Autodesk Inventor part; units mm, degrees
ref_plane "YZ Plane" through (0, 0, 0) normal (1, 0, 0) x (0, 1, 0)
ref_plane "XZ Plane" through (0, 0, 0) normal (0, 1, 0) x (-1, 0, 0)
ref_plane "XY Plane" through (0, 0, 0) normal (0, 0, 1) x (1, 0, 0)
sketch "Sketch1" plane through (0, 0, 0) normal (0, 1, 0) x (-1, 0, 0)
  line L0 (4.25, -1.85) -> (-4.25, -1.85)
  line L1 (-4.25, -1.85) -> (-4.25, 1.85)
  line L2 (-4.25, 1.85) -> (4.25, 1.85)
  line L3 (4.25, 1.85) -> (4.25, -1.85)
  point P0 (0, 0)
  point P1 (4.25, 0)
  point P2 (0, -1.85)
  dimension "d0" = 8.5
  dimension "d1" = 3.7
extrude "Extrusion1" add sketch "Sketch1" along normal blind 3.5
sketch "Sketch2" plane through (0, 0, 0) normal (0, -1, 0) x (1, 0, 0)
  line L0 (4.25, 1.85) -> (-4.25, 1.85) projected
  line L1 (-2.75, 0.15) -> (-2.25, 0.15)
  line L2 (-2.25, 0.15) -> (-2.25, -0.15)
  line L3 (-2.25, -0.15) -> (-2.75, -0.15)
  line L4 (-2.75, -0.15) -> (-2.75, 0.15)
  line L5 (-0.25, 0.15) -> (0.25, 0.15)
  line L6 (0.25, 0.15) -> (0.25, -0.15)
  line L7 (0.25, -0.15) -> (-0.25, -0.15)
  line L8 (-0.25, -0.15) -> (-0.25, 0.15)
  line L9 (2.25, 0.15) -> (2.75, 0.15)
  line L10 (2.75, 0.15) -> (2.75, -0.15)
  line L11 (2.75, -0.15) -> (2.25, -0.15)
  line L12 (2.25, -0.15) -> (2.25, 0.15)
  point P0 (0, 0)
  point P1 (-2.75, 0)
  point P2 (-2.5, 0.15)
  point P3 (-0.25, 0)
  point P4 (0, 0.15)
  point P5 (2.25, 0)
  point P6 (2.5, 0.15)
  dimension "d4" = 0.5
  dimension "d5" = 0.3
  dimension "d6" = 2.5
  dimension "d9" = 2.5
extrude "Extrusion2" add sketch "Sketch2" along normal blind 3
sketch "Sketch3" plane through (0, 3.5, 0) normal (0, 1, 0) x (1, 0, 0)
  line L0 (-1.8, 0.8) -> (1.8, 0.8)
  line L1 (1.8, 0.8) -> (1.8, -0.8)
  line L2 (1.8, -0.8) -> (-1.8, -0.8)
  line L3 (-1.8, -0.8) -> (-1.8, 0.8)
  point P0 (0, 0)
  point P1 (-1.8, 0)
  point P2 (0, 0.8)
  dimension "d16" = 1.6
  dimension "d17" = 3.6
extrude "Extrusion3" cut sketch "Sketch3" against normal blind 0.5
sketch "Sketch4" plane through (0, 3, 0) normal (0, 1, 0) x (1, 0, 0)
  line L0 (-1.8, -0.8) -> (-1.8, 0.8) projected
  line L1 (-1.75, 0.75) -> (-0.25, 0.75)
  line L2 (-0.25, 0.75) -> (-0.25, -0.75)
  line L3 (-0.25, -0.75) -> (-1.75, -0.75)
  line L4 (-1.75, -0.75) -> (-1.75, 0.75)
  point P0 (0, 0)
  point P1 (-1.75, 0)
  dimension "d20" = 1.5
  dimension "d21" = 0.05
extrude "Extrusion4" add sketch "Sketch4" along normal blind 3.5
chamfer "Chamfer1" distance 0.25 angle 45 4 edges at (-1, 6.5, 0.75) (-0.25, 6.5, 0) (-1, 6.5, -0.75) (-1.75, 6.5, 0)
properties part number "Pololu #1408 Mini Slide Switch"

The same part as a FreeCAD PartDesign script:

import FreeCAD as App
import Part
import Sketcher
Q = App.Units.Quantity


def edges_at(feature, points):
    """Names of the edges that pass closest to the given points."""
    edges = feature.Shape.Edges
    near = lambda p: min(range(len(edges)), key=lambda i: edges[i].distToShape(Part.Vertex(*p))[0])
    return sorted({f"Edge{near(p) + 1}" for p in points})


def add_polygon(sketch, points):
    """Adds a closed chain of lines whose ends are joined by coincident constraints."""
    first, n = sketch.GeometryCount, len(points)
    for a, b in zip(points, points[1:] + points[:1]):
        sketch.addGeometry(Part.LineSegment(App.Vector(*a, 0), App.Vector(*b, 0)), False)
    for i in range(n):
        sketch.addConstraint(Sketcher.Constraint("Coincident", first + i, 2, first + (i + 1) % n, 1))

doc = App.newDocument("Part")
body = doc.addObject("PartDesign::Body", "Body")

# Sketch on XZ plane
sketch1 = body.newObject("Sketcher::SketchObject", "Sketch")
sketch1.AttachmentSupport = (doc.getObject("XZ_Plane"), [""])
sketch1.MapMode = "FlatFace"
add_polygon(sketch1, [(4.2, -1.9), (-4.2, -1.9), (-4.2, 1.9), (4.2, 1.9)])  # lines 0-3
sketch1.addConstraint(Sketcher.Constraint("Horizontal", 0))
sketch1.addConstraint(Sketcher.Constraint("Vertical", 1))
sketch1.addConstraint(Sketcher.Constraint("Horizontal", 2))
sketch1.addConstraint(Sketcher.Constraint("Vertical", 3))
sketch1.addConstraint(Sketcher.Constraint("Symmetric", 0, 2, 2, 2, -1, 1))
sketch1.addConstraint(Sketcher.Constraint("DistanceX", 0, 2, 0, 1, Q("8.5 mm")))
sketch1.addConstraint(Sketcher.Constraint("DistanceY", 1, 1, 1, 2, Q("3.7 mm")))
pad1 = body.newObject("PartDesign::Pad", "Pad")
pad1.Profile = sketch1
pad1.Length = 3.5
pad1.Reversed = True

# Sketch on XZ plane
sketch2 = body.newObject("Sketcher::SketchObject", "Sketch001")
sketch2.AttachmentSupport = (doc.getObject("XZ_Plane"), [""])
sketch2.MapMode = "FlatFace"
add_polygon(sketch2, [(-2.25, 0.15), (-2.75, 0.15), (-2.75, -0.15), (-2.25, -0.15)])  # lines 0-3
add_polygon(sketch2, [(0.25, 0.15), (-0.25, 0.15), (-0.25, -0.15), (0.25, -0.15)])  # lines 4-7
add_polygon(sketch2, [(2.75, 0.15), (2.25, 0.15), (2.25, -0.15), (2.75, -0.15)])  # lines 8-11
sketch2.addConstraint(Sketcher.Constraint("Horizontal", 0))
sketch2.addConstraint(Sketcher.Constraint("Vertical", 1))
sketch2.addConstraint(Sketcher.Constraint("Horizontal", 2))
sketch2.addConstraint(Sketcher.Constraint("Vertical", 3))
sketch2.addConstraint(Sketcher.Constraint("Horizontal", 4))
sketch2.addConstraint(Sketcher.Constraint("Vertical", 5))
sketch2.addConstraint(Sketcher.Constraint("Horizontal", 6))
sketch2.addConstraint(Sketcher.Constraint("Vertical", 7))
sketch2.addConstraint(Sketcher.Constraint("Horizontal", 8))
sketch2.addConstraint(Sketcher.Constraint("Vertical", 9))
sketch2.addConstraint(Sketcher.Constraint("Horizontal", 10))
sketch2.addConstraint(Sketcher.Constraint("Vertical", 11))
sketch2.addConstraint(Sketcher.Constraint("Symmetric", 4, 2, 6, 2, -1, 1))
sketch2.addConstraint(Sketcher.Constraint("Symmetric", 2, 2, 8, 2, -1, 1))
sketch2.addConstraint(Sketcher.Constraint("Symmetric", 0, 2, 10, 2, -1, 1))
sketch2.addConstraint(Sketcher.Constraint("Horizontal", 3, 2, 4, 2))
sketch2.addConstraint(Sketcher.Constraint("Horizontal", 2, 2, 5, 2))
sketch2.addConstraint(Sketcher.Constraint("Equal", 2, 4))
sketch2.addConstraint(Sketcher.Constraint("DistanceX", 0, 2, 0, 1, Q("0.5 mm")))
sketch2.addConstraint(Sketcher.Constraint("DistanceY", 1, 2, 1, 1, Q("0.3 mm")))
sketch2.addConstraint(Sketcher.Constraint("DistanceX", 0, 2, 4, 2, Q("2.5 mm")))
pad2 = body.newObject("PartDesign::Pad", "Pad001")
pad2.Profile = sketch2
pad2.Length = 3

# Sketch on XZ plane
sketch3 = body.newObject("Sketcher::SketchObject", "Sketch002")
sketch3.AttachmentSupport = (doc.getObject("XZ_Plane"), [""])
sketch3.MapMode = "FlatFace"
sketch3.AttachmentOffset = App.Placement(App.Vector(0, 0, -3.5), App.Rotation())
add_polygon(sketch3, [(1.8, -0.8), (-1.8, -0.8), (-1.8, 0.8), (1.8, 0.8)])  # lines 0-3
sketch3.addConstraint(Sketcher.Constraint("Horizontal", 0))
sketch3.addConstraint(Sketcher.Constraint("Vertical", 1))
sketch3.addConstraint(Sketcher.Constraint("Horizontal", 2))
sketch3.addConstraint(Sketcher.Constraint("Vertical", 3))
sketch3.addConstraint(Sketcher.Constraint("Symmetric", 0, 2, 2, 2, -1, 1))
sketch3.addConstraint(Sketcher.Constraint("DistanceX", 0, 2, 0, 1, Q("3.6 mm")))
sketch3.addConstraint(Sketcher.Constraint("DistanceY", 1, 1, 1, 2, Q("1.6 mm")))
pocket1 = body.newObject("PartDesign::Pocket", "Pocket")
pocket1.Profile = sketch3
pocket1.Length = 0.5
pocket1.Reversed = True

# Sketch on XZ plane
sketch4 = body.newObject("Sketcher::SketchObject", "Sketch003")
sketch4.AttachmentSupport = (doc.getObject("XZ_Plane"), [""])
sketch4.MapMode = "FlatFace"
sketch4.AttachmentOffset = App.Placement(App.Vector(0, 0, -3), App.Rotation())
add_polygon(sketch4, [(-0.2, -0.8), (-1.8, -0.8), (-1.8, 0.8), (-0.2, 0.8)])  # lines 0-3
sketch4.addConstraint(Sketcher.Constraint("Horizontal", 0))
sketch4.addConstraint(Sketcher.Constraint("Vertical", 1))
sketch4.addConstraint(Sketcher.Constraint("Horizontal", 2))
sketch4.addConstraint(Sketcher.Constraint("Vertical", 3))
sketch4.addConstraint(Sketcher.Constraint("Equal", 2, 1))
sketch4.addConstraint(Sketcher.Constraint("DistanceX", 0, 2, 0, 1, Q("1.5 mm")))
sketch4.addConstraint(Sketcher.Constraint("DistanceX", 0, 2, -1, 1, Q("1.75 mm")))
sketch4.addConstraint(Sketcher.Constraint("DistanceY", 0, 2, -1, 1, Q("0.75 mm")))
pad3 = body.newObject("PartDesign::Pad", "Pad002")
pad3.Profile = sketch4
pad3.Length = 3.5
pad3.Reversed = True
doc.recompute()

chamfer = body.newObject("PartDesign::Chamfer", "Chamfer")
chamfer.Base = (pad3, edges_at(pad3, [
    (-1, 6.5, 0.75),
    (-0.25, 6.5, 0),
    (-1, 6.5, -0.75),
    (-1.75, 6.5, 0),
]))
chamfer.Size = 0.25

doc.recompute()
